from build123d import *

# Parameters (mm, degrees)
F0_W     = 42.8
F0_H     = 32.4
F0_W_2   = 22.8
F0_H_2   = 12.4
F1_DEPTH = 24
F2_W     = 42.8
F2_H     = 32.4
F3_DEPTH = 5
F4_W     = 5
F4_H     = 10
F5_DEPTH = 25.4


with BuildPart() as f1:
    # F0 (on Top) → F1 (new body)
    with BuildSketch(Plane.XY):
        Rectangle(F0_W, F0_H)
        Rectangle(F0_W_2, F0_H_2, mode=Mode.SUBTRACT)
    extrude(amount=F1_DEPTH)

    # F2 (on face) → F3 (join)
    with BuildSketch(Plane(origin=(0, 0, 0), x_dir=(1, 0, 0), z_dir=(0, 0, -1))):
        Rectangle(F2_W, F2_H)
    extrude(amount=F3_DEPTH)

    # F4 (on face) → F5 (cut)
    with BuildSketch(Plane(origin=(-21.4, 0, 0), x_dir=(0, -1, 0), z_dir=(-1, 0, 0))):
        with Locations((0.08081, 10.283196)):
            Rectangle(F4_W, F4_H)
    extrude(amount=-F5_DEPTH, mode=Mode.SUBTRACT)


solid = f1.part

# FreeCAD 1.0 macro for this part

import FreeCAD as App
import Part
import Sketcher
from FreeCAD import Vector
Q = App.Units.Quantity


def add_polygon(sketch, points):
    """Adds a closed chain of lines whose ends are joined by coincident constraints."""
    first, n = sketch.GeometryCount, len(points)
    for a, b in zip(points, points[1:] + points[:1]):
        sketch.addGeometry(Part.LineSegment(App.Vector(*a, 0), App.Vector(*b, 0)), False)
    for i in range(n):
        sketch.addConstraint(Sketcher.Constraint("Coincident", first + i, 2, first + (i + 1) % n, 1))

doc = App.newDocument("Part")
params = doc.addObject("Spreadsheet::Sheet", "Params")
for row, (alias, value) in enumerate([
    ("sketch1_width", "42.8 mm"),
    ("sketch1_width2", "22.8 mm"),
    ("sketch1_height", "32.4 mm"),
    ("sketch1_height2", "12.4 mm"),
    ("pad1_length", "24 mm"),
    ("sketch2_width", "42.8 mm"),
    ("sketch2_height", "32.4 mm"),
    ("pad2_length", "5 mm"),
    ("sketch3_width", "5 mm"),
    ("sketch3_height", "10 mm"),
    ("pocket1_length", "25.4 mm"),
], start=1):
    params.set(f"A{row}", alias)
    params.set(f"B{row}", "=" + value)
    params.setAlias(f"B{row}", alias)

body = doc.addObject("PartDesign::Body", "Body")

# Sketch on XY plane
sketch1 = body.newObject("Sketcher::SketchObject", "Sketch")
sketch1.AttachmentSupport = (doc.getObject("XY_Plane"), [""])
sketch1.MapMode = "FlatFace"
add_polygon(sketch1, [(-21, 16), (-21, -16), (21, -16), (21, 16)])  # lines 0-3
add_polygon(sketch1, [(11, -6), (-11, -6), (-11, 6), (11, 6)])  # lines 4-7
sketch1.addConstraint(Sketcher.Constraint("Vertical", 0))
sketch1.addConstraint(Sketcher.Constraint("Horizontal", 1))
sketch1.addConstraint(Sketcher.Constraint("Vertical", 2))
sketch1.addConstraint(Sketcher.Constraint("Horizontal", 3))
sketch1.addConstraint(Sketcher.Constraint("Horizontal", 4))
sketch1.addConstraint(Sketcher.Constraint("Vertical", 5))
sketch1.addConstraint(Sketcher.Constraint("Horizontal", 6))
sketch1.addConstraint(Sketcher.Constraint("Vertical", 7))
sketch1.addConstraint(Sketcher.Constraint("Symmetric", 0, 2, 2, 2, -1, 1))
sketch1.addConstraint(Sketcher.Constraint("Symmetric", 4, 2, 6, 2, -1, 1))
sketch1.addConstraint(Sketcher.Constraint("DistanceX", 1, 1, 1, 2, Q("42.8 mm")))
sketch1.addConstraint(Sketcher.Constraint("DistanceX", 4, 2, 4, 1, Q("22.8 mm")))
sketch1.addConstraint(Sketcher.Constraint("DistanceY", 0, 2, 0, 1, Q("32.4 mm")))
sketch1.addConstraint(Sketcher.Constraint("DistanceY", 5, 1, 5, 2, Q("12.4 mm")))
sketch1.setExpression("Constraints[18]", "Params.sketch1_width")
sketch1.setExpression("Constraints[19]", "Params.sketch1_width2")
sketch1.setExpression("Constraints[20]", "Params.sketch1_height")
sketch1.setExpression("Constraints[21]", "Params.sketch1_height2")
pad1 = body.newObject("PartDesign::Pad", "Pad")
pad1.Profile = sketch1
pad1.setExpression("Length", "Params.pad1_length")

# Sketch on XY plane
sketch2 = body.newObject("Sketcher::SketchObject", "Sketch001")
sketch2.AttachmentSupport = (doc.getObject("XY_Plane"), [""])
sketch2.MapMode = "FlatFace"
add_polygon(sketch2, [(-21, -16), (-21, 16), (21, 16), (21, -16)])  # lines 0-3
sketch2.addConstraint(Sketcher.Constraint("Vertical", 0))
sketch2.addConstraint(Sketcher.Constraint("Horizontal", 1))
sketch2.addConstraint(Sketcher.Constraint("Vertical", 2))
sketch2.addConstraint(Sketcher.Constraint("Horizontal", 3))
sketch2.addConstraint(Sketcher.Constraint("Symmetric", 0, 2, 2, 2, -1, 1))
sketch2.addConstraint(Sketcher.Constraint("DistanceX", 1, 1, 1, 2, Q("42.8 mm")))
sketch2.addConstraint(Sketcher.Constraint("DistanceY", 0, 1, 0, 2, Q("32.4 mm")))
sketch2.setExpression("Constraints[9]", "Params.sketch2_width")
sketch2.setExpression("Constraints[10]", "Params.sketch2_height")
pad2 = body.newObject("PartDesign::Pad", "Pad001")
pad2.Profile = sketch2
pad2.setExpression("Length", "Params.pad2_length")
pad2.Reversed = True

# Sketch on YZ plane
sketch3 = body.newObject("Sketcher::SketchObject", "Sketch002")
sketch3.AttachmentSupport = (doc.getObject("YZ_Plane"), [""])
sketch3.MapMode = "FlatFace"
sketch3.AttachmentOffset = App.Placement(Vector(0, 0, -21.4), App.Rotation())
add_polygon(sketch3, [(2, 15), (2, 5), (-3, 5), (-3, 15)])  # lines 0-3
sketch3.addConstraint(Sketcher.Constraint("Vertical", 0))
sketch3.addConstraint(Sketcher.Constraint("Horizontal", 1))
sketch3.addConstraint(Sketcher.Constraint("Vertical", 2))
sketch3.addConstraint(Sketcher.Constraint("Horizontal", 3))
sketch3.addConstraint(Sketcher.Constraint("DistanceX", 1, 2, 1, 1, Q("5 mm")))
sketch3.addConstraint(Sketcher.Constraint("DistanceY", 0, 2, 0, 1, Q("10 mm")))
sketch3.addConstraint(Sketcher.Constraint("DistanceX", -1, 1, 0, 2, Q("2.41919 mm")))
sketch3.addConstraint(Sketcher.Constraint("DistanceY", -1, 1, 0, 2, Q("5.283196 mm")))
sketch3.setExpression("Constraints[8]", "Params.sketch3_width")
sketch3.setExpression("Constraints[9]", "Params.sketch3_height")
pocket1 = body.newObject("PartDesign::Pocket", "Pocket")
pocket1.Profile = sketch3
pocket1.setExpression("Length", "Params.pocket1_length")
pocket1.Reversed = True

doc.recompute()
